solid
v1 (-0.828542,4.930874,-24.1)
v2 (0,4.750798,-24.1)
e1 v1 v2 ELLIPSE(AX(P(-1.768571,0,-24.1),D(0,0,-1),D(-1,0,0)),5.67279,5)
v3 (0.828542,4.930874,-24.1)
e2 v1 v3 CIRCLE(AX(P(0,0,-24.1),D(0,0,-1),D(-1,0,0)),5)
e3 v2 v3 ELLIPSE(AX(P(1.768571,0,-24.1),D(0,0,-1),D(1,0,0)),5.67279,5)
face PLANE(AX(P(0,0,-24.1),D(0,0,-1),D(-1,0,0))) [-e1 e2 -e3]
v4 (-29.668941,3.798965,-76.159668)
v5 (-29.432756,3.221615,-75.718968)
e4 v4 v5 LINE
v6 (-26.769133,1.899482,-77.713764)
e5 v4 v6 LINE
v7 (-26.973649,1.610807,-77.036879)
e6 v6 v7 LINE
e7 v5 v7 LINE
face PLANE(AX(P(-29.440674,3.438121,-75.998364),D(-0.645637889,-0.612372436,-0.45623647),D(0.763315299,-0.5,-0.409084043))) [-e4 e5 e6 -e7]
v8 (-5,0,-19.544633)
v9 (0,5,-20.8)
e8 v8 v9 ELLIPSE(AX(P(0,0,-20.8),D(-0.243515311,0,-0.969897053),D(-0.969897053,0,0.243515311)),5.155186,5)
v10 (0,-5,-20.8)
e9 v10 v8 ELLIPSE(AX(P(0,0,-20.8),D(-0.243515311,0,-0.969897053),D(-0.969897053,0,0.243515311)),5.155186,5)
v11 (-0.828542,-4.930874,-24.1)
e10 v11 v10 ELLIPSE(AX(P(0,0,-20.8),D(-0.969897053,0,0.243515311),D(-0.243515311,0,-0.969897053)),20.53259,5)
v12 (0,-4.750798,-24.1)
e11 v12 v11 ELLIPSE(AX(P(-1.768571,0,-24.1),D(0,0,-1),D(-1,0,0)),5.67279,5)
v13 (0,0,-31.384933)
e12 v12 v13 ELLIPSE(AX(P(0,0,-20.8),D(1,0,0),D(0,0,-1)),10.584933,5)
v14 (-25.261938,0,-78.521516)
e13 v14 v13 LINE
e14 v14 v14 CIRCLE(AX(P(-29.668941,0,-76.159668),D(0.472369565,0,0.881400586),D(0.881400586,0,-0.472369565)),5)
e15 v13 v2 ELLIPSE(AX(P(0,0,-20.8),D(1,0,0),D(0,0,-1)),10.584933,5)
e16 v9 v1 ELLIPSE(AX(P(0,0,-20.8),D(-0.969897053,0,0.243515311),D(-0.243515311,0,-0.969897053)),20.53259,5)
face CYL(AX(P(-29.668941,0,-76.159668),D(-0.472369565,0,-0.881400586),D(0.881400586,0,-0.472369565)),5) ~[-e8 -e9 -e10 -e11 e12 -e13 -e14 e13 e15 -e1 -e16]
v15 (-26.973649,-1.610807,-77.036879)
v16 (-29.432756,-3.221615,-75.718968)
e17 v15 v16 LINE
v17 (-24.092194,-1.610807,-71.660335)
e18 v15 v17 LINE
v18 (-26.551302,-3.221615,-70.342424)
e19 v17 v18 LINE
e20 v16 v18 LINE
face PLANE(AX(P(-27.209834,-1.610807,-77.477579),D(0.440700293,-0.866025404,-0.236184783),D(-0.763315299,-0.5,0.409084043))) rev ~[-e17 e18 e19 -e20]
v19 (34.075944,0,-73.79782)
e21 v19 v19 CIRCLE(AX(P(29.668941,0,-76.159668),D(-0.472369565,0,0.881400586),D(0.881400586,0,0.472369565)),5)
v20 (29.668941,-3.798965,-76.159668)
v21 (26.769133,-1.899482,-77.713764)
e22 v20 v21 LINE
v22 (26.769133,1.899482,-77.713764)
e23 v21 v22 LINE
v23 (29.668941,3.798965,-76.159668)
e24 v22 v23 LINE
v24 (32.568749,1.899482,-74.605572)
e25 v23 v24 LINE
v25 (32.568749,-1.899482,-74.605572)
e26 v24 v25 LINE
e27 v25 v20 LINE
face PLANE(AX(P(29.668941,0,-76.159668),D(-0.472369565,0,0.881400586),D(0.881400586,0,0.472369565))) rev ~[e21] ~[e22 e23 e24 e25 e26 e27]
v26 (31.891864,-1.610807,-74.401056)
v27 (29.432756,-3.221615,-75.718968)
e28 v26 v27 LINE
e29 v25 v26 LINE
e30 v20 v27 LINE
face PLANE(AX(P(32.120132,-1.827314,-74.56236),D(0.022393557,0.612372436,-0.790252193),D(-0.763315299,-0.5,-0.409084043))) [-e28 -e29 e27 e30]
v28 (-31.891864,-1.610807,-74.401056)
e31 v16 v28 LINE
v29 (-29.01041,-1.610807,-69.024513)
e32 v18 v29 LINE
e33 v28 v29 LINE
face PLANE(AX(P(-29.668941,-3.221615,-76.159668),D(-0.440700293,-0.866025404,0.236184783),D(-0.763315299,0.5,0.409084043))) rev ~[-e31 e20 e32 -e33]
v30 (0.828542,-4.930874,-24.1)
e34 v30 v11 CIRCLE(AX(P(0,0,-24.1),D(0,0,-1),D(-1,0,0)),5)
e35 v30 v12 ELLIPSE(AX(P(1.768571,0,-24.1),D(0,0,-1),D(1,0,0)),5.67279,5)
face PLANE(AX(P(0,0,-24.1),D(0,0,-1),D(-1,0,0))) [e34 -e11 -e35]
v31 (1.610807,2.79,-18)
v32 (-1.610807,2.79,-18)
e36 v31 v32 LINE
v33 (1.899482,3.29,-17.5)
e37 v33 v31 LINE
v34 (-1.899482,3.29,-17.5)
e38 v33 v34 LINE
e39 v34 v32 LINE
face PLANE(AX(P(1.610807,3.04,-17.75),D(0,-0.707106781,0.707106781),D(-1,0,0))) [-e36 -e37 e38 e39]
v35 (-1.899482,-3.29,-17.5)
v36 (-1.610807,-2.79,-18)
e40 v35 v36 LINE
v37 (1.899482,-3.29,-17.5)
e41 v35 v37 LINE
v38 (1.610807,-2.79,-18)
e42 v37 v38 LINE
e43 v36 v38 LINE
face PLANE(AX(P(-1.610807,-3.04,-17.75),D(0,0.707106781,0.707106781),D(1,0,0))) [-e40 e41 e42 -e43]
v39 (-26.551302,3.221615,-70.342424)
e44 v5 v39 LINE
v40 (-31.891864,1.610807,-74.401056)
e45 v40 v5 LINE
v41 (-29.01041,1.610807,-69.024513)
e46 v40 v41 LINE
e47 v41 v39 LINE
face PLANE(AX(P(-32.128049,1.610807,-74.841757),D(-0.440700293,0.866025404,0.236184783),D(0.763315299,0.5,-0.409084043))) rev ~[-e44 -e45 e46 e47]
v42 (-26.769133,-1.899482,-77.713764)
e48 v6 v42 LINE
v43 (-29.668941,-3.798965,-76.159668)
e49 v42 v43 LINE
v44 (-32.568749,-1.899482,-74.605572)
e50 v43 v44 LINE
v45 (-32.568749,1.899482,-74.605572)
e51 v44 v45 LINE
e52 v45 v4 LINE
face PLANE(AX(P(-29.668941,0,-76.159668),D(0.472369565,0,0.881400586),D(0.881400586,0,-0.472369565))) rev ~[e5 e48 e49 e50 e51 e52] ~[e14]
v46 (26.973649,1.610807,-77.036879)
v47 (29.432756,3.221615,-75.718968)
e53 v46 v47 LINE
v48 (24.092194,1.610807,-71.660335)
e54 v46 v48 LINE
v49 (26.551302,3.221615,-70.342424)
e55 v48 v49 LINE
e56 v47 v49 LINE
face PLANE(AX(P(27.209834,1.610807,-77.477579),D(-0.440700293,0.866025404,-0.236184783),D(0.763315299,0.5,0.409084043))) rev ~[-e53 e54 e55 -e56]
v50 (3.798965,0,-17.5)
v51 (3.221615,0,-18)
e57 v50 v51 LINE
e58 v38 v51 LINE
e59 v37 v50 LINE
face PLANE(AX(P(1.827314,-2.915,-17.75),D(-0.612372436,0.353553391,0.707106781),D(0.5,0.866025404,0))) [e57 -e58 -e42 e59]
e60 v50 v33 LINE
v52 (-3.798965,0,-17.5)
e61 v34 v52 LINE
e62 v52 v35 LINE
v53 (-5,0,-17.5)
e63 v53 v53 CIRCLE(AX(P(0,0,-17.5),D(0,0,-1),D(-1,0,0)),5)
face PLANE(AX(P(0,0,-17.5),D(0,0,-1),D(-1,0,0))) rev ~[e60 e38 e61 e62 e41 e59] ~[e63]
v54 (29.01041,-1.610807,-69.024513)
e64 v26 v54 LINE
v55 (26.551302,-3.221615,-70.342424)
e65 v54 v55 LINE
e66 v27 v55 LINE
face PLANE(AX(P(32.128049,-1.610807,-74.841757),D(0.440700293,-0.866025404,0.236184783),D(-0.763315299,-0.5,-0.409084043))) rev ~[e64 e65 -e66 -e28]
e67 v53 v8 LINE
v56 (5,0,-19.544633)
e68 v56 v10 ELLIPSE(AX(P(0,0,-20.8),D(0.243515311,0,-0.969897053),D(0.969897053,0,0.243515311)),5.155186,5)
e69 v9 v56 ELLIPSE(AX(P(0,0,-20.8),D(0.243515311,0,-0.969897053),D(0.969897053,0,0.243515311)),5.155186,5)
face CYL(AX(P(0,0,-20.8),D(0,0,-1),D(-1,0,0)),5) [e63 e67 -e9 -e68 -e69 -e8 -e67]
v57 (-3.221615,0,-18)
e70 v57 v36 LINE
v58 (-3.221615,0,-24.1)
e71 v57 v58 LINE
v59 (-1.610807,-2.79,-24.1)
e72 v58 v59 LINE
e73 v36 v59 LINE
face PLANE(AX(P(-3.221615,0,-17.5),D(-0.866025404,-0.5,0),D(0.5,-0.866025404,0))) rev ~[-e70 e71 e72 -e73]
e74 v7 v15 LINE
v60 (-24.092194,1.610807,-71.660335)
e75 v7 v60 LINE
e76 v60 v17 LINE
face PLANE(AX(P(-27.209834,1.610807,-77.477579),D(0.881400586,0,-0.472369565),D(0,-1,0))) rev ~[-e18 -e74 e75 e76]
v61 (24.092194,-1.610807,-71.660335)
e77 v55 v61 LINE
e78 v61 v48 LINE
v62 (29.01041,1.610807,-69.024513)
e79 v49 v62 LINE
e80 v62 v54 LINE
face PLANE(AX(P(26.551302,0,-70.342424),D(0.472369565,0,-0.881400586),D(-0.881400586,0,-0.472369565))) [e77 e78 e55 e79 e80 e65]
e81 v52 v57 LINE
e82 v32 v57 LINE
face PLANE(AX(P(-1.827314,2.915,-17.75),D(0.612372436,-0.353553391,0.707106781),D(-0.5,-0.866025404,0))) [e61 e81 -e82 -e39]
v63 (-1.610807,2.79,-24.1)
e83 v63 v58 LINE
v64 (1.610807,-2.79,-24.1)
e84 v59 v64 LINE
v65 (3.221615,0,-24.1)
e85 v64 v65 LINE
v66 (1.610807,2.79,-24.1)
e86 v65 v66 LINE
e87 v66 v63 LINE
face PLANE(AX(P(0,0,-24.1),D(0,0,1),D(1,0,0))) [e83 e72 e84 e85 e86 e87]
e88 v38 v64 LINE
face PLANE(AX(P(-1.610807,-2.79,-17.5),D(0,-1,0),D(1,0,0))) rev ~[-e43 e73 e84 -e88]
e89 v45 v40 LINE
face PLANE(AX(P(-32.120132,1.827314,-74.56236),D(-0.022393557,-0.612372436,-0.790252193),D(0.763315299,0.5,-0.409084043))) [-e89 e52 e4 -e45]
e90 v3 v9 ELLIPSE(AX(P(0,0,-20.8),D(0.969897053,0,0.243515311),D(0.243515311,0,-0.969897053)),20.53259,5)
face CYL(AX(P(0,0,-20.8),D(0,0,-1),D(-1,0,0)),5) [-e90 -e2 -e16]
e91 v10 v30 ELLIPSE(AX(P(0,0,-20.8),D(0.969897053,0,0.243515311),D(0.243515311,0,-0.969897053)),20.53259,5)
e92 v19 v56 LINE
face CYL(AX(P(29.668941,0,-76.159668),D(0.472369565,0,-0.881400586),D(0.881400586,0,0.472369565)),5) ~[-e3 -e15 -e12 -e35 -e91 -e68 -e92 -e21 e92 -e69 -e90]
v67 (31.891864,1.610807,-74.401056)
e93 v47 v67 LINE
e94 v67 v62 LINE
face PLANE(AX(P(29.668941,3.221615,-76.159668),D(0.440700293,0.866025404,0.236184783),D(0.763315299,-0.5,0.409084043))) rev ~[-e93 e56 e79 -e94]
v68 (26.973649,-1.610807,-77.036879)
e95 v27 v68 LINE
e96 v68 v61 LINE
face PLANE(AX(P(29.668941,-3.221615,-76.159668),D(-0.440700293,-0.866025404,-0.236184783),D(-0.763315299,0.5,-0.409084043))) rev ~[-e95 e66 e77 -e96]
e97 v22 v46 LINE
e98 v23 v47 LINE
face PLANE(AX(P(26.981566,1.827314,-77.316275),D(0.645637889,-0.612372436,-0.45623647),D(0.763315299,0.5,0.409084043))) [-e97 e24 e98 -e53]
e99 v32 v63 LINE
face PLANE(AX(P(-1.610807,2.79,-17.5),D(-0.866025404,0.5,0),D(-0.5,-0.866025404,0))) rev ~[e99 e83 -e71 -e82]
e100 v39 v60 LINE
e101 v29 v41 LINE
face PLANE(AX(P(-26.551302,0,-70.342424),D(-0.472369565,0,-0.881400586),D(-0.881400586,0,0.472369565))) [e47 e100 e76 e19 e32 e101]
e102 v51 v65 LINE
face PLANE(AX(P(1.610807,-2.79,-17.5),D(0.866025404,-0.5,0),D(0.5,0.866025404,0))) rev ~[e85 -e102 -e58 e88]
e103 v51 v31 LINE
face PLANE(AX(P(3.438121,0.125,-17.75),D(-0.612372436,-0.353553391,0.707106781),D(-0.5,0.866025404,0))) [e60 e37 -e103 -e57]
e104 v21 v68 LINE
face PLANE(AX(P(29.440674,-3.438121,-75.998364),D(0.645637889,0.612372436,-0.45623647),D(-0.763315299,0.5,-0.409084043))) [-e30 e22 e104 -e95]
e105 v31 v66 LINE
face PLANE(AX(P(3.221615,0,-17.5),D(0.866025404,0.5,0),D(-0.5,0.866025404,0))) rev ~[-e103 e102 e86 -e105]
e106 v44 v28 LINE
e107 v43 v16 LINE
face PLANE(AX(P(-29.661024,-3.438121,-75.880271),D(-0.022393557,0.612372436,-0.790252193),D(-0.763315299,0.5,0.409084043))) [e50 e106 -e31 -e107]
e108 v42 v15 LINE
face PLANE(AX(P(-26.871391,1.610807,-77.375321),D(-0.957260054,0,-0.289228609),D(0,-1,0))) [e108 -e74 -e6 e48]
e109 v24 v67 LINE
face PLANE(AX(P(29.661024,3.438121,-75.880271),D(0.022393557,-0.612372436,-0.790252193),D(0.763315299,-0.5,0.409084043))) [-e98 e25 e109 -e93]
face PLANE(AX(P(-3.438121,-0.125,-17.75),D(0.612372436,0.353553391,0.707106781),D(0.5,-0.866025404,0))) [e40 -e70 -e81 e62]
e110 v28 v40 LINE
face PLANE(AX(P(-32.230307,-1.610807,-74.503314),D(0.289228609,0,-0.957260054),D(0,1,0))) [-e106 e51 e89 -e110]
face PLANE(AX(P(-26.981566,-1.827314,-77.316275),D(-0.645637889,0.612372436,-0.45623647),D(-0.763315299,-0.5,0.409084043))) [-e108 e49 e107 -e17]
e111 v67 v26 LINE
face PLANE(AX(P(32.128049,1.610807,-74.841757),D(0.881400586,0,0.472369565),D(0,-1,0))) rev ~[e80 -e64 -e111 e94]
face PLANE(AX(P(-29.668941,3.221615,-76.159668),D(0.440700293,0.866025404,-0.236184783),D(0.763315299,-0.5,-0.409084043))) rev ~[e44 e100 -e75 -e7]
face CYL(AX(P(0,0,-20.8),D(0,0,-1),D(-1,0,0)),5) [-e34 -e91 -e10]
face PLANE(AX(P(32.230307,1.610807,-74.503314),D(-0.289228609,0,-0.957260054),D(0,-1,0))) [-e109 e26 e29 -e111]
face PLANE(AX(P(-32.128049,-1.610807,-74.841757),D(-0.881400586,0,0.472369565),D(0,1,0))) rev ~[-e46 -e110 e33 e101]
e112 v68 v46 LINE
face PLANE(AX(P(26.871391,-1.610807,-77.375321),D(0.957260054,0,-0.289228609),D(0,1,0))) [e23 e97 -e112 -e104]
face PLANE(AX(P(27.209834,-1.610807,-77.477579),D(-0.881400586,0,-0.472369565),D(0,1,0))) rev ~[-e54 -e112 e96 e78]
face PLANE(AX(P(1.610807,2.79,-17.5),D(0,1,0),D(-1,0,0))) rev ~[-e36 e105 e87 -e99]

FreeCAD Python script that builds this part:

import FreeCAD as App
import Part
import Sketcher

V = App.Vector
Q = App.Units.Quantity


def edges_at(feature, points):
    """Names of the edges that pass closest to the given points."""
    edges = feature.Shape.Edges
    near = lambda p: min(range(len(edges)), key=lambda i: edges[i].distToShape(Part.Vertex(*p))[0])
    return sorted({f"Edge{near(p) + 1}" for p in points})

doc = App.newDocument("Part")
body = doc.addObject("PartDesign::Body", "Body")

# Sketch on XZ plane
sketch1 = body.newObject("Sketcher::SketchObject", "Sketch")
sketch1.AttachmentSupport = (doc.getObject("XZ_Plane"), [""])
sketch1.MapMode = "FlatFace"
sketch1.addGeometry([
    Part.LineSegment(V(-5, -24, 0), V(-5, -18, 0)),
    Part.LineSegment(V(-5, -18, 0), V(0, -18, 0)),
    Part.LineSegment(V(0, -18, 0), V(0, -24, 0)),
    Part.LineSegment(V(0, -24, 0), V(-5, -24, 0)),
], False)
sketch1.addConstraint([
    Sketcher.Constraint("Coincident", 0, 2, 1, 1),
    Sketcher.Constraint("Coincident", 1, 2, 2, 1),
    Sketcher.Constraint("Coincident", 2, 2, 3, 1),
    Sketcher.Constraint("Coincident", 3, 2, 0, 1),
    Sketcher.Constraint("Vertical", 0),
    Sketcher.Constraint("Horizontal", 1),
    Sketcher.Constraint("Vertical", 2),
    Sketcher.Constraint("Horizontal", 3),
    Sketcher.Constraint("PointOnObject", 1, 2, -2),
    Sketcher.Constraint("DistanceX", 1, 1, 1, 2, 5.0),
    Sketcher.Constraint("DistanceY", 0, 1, 0, 2, 6.6),
    Sketcher.Constraint("DistanceY", 0, 2, -1, 1, 17.5),
])
revolution = body.newObject("PartDesign::Revolution", "Revolution")
revolution.Profile = sketch1
revolution.ReferenceAxis = (sketch1, ["V_Axis"])
revolution.Angle = 360

# Sketch on an angled plane
sketch2 = body.newObject("Sketcher::SketchObject", "Sketch001")
sketch2.Placement = App.Placement(V(-38.328955, 0, -71.518501), App.Rotation(V(0.881400586, 0, -0.472369565), V(0, 0.999999999, 0), V(0.472369565, 0, 0.881400586), "ZXY"))
sketch2.addGeometry(Part.Circle(V(10, 0, 0), V(0, 0, 1), 5), False)
sketch2.addConstraint([
    Sketcher.Constraint("PointOnObject", 0, 3, -1),
    Sketcher.Constraint("Diameter", 0, 10.0),
    Sketcher.Constraint("DistanceX", -1, 1, 0, 3, 9.825287),
])
pad1 = body.newObject("PartDesign::Pad", "Pad")
pad1.Profile = sketch2
pad1.Length = 62.808749

# Sketch on an angled plane
sketch3 = body.newObject("Sketcher::SketchObject", "Sketch002")
sketch3.Placement = App.Placement(V(38.328955, 0, -71.518501), App.Rotation(V(0.881400586, 0, 0.472369565), V(0, 0.999999999, 0), V(-0.472369565, 0, 0.881400586), "ZXY"))
sketch3.addGeometry(Part.Circle(V(-10, 0, 0), V(0, 0, 1), 5), False)
sketch3.addConstraint([
    Sketcher.Constraint("PointOnObject", 0, 3, -1),
    Sketcher.Constraint("Diameter", 0, 10.0),
    Sketcher.Constraint("DistanceX", 0, 3, -1, 1, 9.825287),
])
pad2 = body.newObject("PartDesign::Pad", "Pad001")
pad2.Profile = sketch3
pad2.Type = "UpToFirst"

# Sketch on XY plane
sketch4 = body.newObject("Sketcher::SketchObject", "Sketch003")
sketch4.AttachmentSupport = (doc.getObject("XY_Plane"), [""])
sketch4.MapMode = "FlatFace"
sketch4.AttachmentOffset = App.Placement(V(0, 0, -17.5), App.Rotation())
sketch4.addGeometry([
    Part.LineSegment(V(1.6, 2.8, 0), V(-1.6, 2.8, 0)),  # 0
    Part.LineSegment(V(-1.6, 2.8, 0), V(-3.2, 0, 0)),  # 1
    Part.LineSegment(V(-3.2, 0, 0), V(-1.6, -2.8, 0)),  # 2
    Part.LineSegment(V(-1.6, -2.8, 0), V(1.6, -2.8, 0)),  # 3
    Part.LineSegment(V(1.6, -2.8, 0), V(3.2, 0, 0)),  # 4
    Part.LineSegment(V(3.2, 0, 0), V(1.6, 2.8, 0)),  # 5
], False)
sketch4.addConstraint([
    Sketcher.Constraint("Coincident", 0, 2, 1, 1),
    Sketcher.Constraint("Coincident", 1, 2, 2, 1),
    Sketcher.Constraint("Coincident", 2, 2, 3, 1),
    Sketcher.Constraint("Coincident", 3, 2, 4, 1),
    Sketcher.Constraint("Coincident", 4, 2, 5, 1),
    Sketcher.Constraint("Coincident", 5, 2, 0, 1),
    Sketcher.Constraint("Horizontal", 0),
    Sketcher.Constraint("Horizontal", 3),
    Sketcher.Constraint("Symmetric", 0, 2, 3, 2, -1, 1),
    Sketcher.Constraint("Symmetric", 1, 2, 4, 2, -1, 1),
    Sketcher.Constraint("PointOnObject", 1, 2, -1),
    Sketcher.Constraint("Parallel", 2, 5),
    Sketcher.Constraint("Vertical", 0, 2, 2, 2),
    Sketcher.Constraint("Angle", 1, Q("-120 deg")),
    Sketcher.Constraint("DistanceY", -1, 1, 0, 2, 2.79),
    Sketcher.Constraint("DistanceX", 0, 2, 0, 1, 3.221615),
])
pocket1 = body.newObject("PartDesign::Pocket", "Pocket")
pocket1.Profile = sketch4
pocket1.Length = 6.6

# Sketch on an angled plane
sketch5 = body.newObject("Sketcher::SketchObject", "Sketch004")
sketch5.Placement = App.Placement(V(-38.328955, 0, -71.518501), App.Rotation(V(-0.881400586, 0, 0.472369565), V(0, 0.999999999, 0), V(-0.472369565, 0, -0.881400586), "ZXY"))
sketch5.addGeometry([
    Part.LineSegment(V(-7, 1.6, 0), V(-9.8, 3.2, 0)),  # 0
    Part.LineSegment(V(-9.8, 3.2, 0), V(-12.6, 1.6, 0)),  # 1
    Part.LineSegment(V(-12.6, 1.6, 0), V(-12.6, -1.6, 0)),  # 2
    Part.LineSegment(V(-12.6, -1.6, 0), V(-9.8, -3.2, 0)),  # 3
    Part.LineSegment(V(-9.8, -3.2, 0), V(-7, -1.6, 0)),  # 4
    Part.LineSegment(V(-7, -1.6, 0), V(-7, 1.6, 0)),  # 5
], False)
sketch5.addConstraint([
    Sketcher.Constraint("Coincident", 0, 2, 1, 1),
    Sketcher.Constraint("Coincident", 1, 2, 2, 1),
    Sketcher.Constraint("Coincident", 2, 2, 3, 1),
    Sketcher.Constraint("Coincident", 3, 2, 4, 1),
    Sketcher.Constraint("Coincident", 4, 2, 5, 1),
    Sketcher.Constraint("Coincident", 5, 2, 0, 1),
    Sketcher.Constraint("Vertical", 2),
    Sketcher.Constraint("Vertical", 5),
    Sketcher.Constraint("Symmetric", 0, 2, 3, 2, -1),
    Sketcher.Constraint("Parallel", 0, 3),
    Sketcher.Constraint("Parallel", 1, 4),
    Sketcher.Constraint("Horizontal", 2, 2, 4, 2),
    Sketcher.Constraint("Horizontal", 1, 2, 5, 2),
    Sketcher.Constraint("Angle", 0, Q("150 deg")),
    Sketcher.Constraint("DistanceX", 1, 2, 0, 2, 2.79),
    Sketcher.Constraint("DistanceY", 2, 2, 2, 1, 3.221614),
    Sketcher.Constraint("DistanceX", 0, 2, -1, 1, 9.825287),
])
pocket2 = body.newObject("PartDesign::Pocket", "Pocket001")
pocket2.Profile = sketch5
pocket2.Length = 6.6

# Sketch on an angled plane
sketch6 = body.newObject("Sketcher::SketchObject", "Sketch005")
sketch6.Placement = App.Placement(V(38.328955, 0, -71.518501), App.Rotation(V(-0.881400586, 0, -0.472369565), V(0, 0.999999999, 0), V(0.472369565, 0, -0.881400586), "ZXY"))
sketch6.addGeometry([
    Part.LineSegment(V(12.6, 1.6, 0), V(9.8, 3.2, 0)),  # 0
    Part.LineSegment(V(9.8, 3.2, 0), V(7, 1.6, 0)),  # 1
    Part.LineSegment(V(7, 1.6, 0), V(7, -1.6, 0)),  # 2
    Part.LineSegment(V(7, -1.6, 0), V(9.8, -3.2, 0)),  # 3
    Part.LineSegment(V(9.8, -3.2, 0), V(12.6, -1.6, 0)),  # 4
    Part.LineSegment(V(12.6, -1.6, 0), V(12.6, 1.6, 0)),  # 5
], False)
sketch6.addConstraint([
    Sketcher.Constraint("Coincident", 0, 2, 1, 1),
    Sketcher.Constraint("Coincident", 1, 2, 2, 1),
    Sketcher.Constraint("Coincident", 2, 2, 3, 1),
    Sketcher.Constraint("Coincident", 3, 2, 4, 1),
    Sketcher.Constraint("Coincident", 4, 2, 5, 1),
    Sketcher.Constraint("Coincident", 5, 2, 0, 1),
    Sketcher.Constraint("Vertical", 2),
    Sketcher.Constraint("Vertical", 5),
    Sketcher.Constraint("Symmetric", 0, 2, 3, 2, -1),
    Sketcher.Constraint("Parallel", 0, 3),
    Sketcher.Constraint("Parallel", 1, 4),
    Sketcher.Constraint("Horizontal", 2, 2, 4, 2),
    Sketcher.Constraint("Horizontal", 1, 2, 5, 2),
    Sketcher.Constraint("Angle", 0, Q("150 deg")),
    Sketcher.Constraint("DistanceX", 1, 2, 0, 2, 2.79),
    Sketcher.Constraint("DistanceY", 2, 2, 2, 1, 3.221614),
    Sketcher.Constraint("DistanceX", -1, 1, 0, 2, 9.825287),
])
pocket3 = body.newObject("PartDesign::Pocket", "Pocket002")
pocket3.Profile = sketch6
pocket3.Length = 6.6
doc.recompute()

chamfer = body.newObject("PartDesign::Chamfer", "Chamfer")
chamfer.Base = (pocket3, edges_at(pocket3, [
    (2.416, 1.395, -17.5),
    (0, 2.79, -17.5),
    (-2.416, 1.395, -17.5),
    (-2.416, -1.395, -17.5),
    (0, -2.79, -17.5),
    (2.416, -1.395, -17.5),
    (-32.128, 0, -74.842),
    (-30.898, 2.416, -75.501),
    (-28.439, 2.416, -76.819),
    (-27.21, 0, -77.478),
    (-28.439, -2.416, -76.819),
    (-30.898, -2.416, -75.501),
    (27.21, 0, -77.478),
    (28.439, 2.416, -76.819),
    (30.898, 2.416, -75.501),
    (32.128, 0, -74.842),
    (30.898, -2.416, -75.501),
    (28.439, -2.416, -76.819),
]))
chamfer.Size = 0.5

doc.recompute()
